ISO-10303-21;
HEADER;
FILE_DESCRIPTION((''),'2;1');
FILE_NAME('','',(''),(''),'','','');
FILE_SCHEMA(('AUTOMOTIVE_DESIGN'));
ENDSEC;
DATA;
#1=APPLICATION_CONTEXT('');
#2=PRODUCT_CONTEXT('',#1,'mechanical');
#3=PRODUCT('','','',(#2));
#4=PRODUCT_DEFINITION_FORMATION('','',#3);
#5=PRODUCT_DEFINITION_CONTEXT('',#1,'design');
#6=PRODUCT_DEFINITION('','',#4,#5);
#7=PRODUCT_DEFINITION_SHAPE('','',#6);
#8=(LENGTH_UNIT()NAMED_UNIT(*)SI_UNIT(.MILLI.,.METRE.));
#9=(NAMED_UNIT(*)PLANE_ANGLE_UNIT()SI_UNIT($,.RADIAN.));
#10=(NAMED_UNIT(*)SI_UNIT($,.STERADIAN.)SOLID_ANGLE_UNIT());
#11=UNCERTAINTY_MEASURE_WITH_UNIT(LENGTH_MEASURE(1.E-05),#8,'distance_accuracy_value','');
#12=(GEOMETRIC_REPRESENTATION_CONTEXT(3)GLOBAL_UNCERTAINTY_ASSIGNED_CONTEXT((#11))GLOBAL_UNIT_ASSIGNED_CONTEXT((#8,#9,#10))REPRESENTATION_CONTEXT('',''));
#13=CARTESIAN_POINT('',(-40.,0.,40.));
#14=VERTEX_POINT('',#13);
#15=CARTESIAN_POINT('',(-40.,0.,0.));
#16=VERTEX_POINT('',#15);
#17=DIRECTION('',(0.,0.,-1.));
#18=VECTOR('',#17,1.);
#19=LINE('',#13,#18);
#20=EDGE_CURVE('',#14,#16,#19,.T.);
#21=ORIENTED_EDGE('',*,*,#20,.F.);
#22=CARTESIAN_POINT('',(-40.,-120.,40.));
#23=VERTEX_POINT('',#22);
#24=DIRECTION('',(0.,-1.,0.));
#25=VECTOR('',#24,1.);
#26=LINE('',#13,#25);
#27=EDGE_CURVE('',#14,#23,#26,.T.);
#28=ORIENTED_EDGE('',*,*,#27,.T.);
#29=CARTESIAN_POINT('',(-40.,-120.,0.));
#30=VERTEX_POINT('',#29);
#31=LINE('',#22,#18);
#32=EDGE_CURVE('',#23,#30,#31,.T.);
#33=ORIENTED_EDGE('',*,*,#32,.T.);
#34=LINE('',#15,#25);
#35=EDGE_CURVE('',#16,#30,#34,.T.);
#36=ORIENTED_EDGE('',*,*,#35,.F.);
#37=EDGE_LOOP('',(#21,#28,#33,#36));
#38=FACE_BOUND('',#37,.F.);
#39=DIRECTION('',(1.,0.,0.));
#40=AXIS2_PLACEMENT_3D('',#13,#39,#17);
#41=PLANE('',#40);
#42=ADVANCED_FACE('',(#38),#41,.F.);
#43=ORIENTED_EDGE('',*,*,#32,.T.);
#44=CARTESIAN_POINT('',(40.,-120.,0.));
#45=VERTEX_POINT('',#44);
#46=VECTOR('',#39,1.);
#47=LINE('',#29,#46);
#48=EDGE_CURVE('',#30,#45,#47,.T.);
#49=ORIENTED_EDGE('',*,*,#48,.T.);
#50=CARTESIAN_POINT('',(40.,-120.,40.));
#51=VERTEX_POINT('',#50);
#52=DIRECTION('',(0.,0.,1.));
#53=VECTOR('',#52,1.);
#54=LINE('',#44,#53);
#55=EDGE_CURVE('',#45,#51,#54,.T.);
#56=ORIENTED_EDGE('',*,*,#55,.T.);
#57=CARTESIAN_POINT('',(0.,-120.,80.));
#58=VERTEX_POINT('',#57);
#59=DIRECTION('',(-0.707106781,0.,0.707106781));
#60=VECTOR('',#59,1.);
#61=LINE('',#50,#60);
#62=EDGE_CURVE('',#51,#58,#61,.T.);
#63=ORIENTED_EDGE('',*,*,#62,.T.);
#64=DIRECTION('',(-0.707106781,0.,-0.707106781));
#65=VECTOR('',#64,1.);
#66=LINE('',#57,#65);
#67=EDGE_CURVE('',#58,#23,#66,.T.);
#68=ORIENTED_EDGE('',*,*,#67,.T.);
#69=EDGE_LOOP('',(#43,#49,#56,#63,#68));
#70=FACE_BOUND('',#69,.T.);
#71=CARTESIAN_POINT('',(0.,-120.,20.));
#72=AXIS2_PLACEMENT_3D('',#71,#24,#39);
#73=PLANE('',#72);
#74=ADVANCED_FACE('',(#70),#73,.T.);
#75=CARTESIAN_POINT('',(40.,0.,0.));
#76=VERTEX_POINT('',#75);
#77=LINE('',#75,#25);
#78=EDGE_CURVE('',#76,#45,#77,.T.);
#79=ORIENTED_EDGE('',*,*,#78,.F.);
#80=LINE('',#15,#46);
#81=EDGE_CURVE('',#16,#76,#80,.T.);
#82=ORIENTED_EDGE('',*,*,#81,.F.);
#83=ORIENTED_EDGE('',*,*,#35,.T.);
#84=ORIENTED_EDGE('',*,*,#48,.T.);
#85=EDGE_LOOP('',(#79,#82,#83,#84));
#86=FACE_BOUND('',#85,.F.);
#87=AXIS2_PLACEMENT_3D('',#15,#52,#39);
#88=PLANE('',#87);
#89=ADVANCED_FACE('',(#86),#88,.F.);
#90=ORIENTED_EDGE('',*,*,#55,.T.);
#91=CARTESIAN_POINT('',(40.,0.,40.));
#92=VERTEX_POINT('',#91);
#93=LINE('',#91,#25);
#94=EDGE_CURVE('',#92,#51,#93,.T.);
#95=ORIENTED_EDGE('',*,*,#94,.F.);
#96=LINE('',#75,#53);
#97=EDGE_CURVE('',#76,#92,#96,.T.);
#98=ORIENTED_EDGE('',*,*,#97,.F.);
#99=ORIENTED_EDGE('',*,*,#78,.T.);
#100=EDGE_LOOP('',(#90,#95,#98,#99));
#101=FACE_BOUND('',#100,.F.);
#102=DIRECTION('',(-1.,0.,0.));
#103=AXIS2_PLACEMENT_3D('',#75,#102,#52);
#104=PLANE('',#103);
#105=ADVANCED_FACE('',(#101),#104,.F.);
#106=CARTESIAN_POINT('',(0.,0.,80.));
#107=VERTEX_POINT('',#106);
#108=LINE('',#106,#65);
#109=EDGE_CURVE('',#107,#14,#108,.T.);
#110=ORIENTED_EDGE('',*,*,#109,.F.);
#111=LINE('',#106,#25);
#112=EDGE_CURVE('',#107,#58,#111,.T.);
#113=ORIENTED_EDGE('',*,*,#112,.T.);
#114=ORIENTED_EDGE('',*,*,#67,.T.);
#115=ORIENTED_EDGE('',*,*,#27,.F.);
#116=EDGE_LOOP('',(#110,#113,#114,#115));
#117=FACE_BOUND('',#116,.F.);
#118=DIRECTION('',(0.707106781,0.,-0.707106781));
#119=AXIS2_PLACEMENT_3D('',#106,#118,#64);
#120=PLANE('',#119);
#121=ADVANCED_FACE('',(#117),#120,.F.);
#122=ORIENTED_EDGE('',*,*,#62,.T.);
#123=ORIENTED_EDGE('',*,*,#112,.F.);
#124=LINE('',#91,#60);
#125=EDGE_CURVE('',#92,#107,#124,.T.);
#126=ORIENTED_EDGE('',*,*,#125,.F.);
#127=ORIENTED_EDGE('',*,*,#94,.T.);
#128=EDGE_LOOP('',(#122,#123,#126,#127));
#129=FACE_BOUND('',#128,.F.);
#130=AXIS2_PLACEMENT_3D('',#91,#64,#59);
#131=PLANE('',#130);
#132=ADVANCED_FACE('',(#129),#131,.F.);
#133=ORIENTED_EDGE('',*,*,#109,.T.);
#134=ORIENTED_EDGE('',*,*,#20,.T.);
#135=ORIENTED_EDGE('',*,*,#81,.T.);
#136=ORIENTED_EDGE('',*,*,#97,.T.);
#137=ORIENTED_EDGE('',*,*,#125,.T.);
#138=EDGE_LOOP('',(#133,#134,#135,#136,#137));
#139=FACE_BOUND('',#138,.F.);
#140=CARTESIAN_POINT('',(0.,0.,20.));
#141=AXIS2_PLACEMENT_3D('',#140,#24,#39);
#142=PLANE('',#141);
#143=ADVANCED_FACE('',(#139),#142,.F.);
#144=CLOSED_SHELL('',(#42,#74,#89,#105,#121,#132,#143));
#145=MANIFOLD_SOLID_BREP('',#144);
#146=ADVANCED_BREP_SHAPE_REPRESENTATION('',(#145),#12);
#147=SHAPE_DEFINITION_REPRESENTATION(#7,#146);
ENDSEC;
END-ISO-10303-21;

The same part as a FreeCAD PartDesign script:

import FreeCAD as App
import Part
import Sketcher
from FreeCAD import Vector
Q = App.Units.Quantity


def add_polygon(sketch, points):
    """Adds a closed chain of lines whose ends are joined by coincident constraints."""
    first, n = sketch.GeometryCount, len(points)
    for a, b in zip(points, points[1:] + points[:1]):
        sketch.addGeometry(Part.LineSegment(App.Vector(*a, 0), App.Vector(*b, 0)), False)
    for i in range(n):
        sketch.addConstraint(Sketcher.Constraint("Coincident", first + i, 2, first + (i + 1) % n, 1))

doc = App.newDocument("Part")
body = doc.addObject("PartDesign::Body", "Body")

# Sketch on XZ plane
sketch1 = body.newObject("Sketcher::SketchObject", "Sketch")
sketch1.AttachmentSupport = (doc.getObject("XZ_Plane"), [""])
sketch1.MapMode = "FlatFace"
add_polygon(sketch1, [(-40, 40), (-40, 0), (40, 0), (40, 40), (0, 80)])  # lines 0-4
sketch1.addConstraint([
    Sketcher.Constraint("Vertical", 0),
    Sketcher.Constraint("Horizontal", 1),
    Sketcher.Constraint("Vertical", 2),
    Sketcher.Constraint("Symmetric", 0, 2, 1, 2, -1, 1),
    Sketcher.Constraint("PointOnObject", 3, 2, -2),
    Sketcher.Constraint("Perpendicular", 3, 4),
    Sketcher.Constraint("Horizontal", 2, 2, 4, 2),
    Sketcher.Constraint("DistanceX", 1, 1, 1, 2, Q("80 mm")),
    Sketcher.Constraint("DistanceY", 0, 2, 0, 1, Q("40 mm")),
])
pad1 = body.newObject("PartDesign::Pad", "Pad")
pad1.Profile = sketch1
pad1.Length = 120

doc.recompute()
